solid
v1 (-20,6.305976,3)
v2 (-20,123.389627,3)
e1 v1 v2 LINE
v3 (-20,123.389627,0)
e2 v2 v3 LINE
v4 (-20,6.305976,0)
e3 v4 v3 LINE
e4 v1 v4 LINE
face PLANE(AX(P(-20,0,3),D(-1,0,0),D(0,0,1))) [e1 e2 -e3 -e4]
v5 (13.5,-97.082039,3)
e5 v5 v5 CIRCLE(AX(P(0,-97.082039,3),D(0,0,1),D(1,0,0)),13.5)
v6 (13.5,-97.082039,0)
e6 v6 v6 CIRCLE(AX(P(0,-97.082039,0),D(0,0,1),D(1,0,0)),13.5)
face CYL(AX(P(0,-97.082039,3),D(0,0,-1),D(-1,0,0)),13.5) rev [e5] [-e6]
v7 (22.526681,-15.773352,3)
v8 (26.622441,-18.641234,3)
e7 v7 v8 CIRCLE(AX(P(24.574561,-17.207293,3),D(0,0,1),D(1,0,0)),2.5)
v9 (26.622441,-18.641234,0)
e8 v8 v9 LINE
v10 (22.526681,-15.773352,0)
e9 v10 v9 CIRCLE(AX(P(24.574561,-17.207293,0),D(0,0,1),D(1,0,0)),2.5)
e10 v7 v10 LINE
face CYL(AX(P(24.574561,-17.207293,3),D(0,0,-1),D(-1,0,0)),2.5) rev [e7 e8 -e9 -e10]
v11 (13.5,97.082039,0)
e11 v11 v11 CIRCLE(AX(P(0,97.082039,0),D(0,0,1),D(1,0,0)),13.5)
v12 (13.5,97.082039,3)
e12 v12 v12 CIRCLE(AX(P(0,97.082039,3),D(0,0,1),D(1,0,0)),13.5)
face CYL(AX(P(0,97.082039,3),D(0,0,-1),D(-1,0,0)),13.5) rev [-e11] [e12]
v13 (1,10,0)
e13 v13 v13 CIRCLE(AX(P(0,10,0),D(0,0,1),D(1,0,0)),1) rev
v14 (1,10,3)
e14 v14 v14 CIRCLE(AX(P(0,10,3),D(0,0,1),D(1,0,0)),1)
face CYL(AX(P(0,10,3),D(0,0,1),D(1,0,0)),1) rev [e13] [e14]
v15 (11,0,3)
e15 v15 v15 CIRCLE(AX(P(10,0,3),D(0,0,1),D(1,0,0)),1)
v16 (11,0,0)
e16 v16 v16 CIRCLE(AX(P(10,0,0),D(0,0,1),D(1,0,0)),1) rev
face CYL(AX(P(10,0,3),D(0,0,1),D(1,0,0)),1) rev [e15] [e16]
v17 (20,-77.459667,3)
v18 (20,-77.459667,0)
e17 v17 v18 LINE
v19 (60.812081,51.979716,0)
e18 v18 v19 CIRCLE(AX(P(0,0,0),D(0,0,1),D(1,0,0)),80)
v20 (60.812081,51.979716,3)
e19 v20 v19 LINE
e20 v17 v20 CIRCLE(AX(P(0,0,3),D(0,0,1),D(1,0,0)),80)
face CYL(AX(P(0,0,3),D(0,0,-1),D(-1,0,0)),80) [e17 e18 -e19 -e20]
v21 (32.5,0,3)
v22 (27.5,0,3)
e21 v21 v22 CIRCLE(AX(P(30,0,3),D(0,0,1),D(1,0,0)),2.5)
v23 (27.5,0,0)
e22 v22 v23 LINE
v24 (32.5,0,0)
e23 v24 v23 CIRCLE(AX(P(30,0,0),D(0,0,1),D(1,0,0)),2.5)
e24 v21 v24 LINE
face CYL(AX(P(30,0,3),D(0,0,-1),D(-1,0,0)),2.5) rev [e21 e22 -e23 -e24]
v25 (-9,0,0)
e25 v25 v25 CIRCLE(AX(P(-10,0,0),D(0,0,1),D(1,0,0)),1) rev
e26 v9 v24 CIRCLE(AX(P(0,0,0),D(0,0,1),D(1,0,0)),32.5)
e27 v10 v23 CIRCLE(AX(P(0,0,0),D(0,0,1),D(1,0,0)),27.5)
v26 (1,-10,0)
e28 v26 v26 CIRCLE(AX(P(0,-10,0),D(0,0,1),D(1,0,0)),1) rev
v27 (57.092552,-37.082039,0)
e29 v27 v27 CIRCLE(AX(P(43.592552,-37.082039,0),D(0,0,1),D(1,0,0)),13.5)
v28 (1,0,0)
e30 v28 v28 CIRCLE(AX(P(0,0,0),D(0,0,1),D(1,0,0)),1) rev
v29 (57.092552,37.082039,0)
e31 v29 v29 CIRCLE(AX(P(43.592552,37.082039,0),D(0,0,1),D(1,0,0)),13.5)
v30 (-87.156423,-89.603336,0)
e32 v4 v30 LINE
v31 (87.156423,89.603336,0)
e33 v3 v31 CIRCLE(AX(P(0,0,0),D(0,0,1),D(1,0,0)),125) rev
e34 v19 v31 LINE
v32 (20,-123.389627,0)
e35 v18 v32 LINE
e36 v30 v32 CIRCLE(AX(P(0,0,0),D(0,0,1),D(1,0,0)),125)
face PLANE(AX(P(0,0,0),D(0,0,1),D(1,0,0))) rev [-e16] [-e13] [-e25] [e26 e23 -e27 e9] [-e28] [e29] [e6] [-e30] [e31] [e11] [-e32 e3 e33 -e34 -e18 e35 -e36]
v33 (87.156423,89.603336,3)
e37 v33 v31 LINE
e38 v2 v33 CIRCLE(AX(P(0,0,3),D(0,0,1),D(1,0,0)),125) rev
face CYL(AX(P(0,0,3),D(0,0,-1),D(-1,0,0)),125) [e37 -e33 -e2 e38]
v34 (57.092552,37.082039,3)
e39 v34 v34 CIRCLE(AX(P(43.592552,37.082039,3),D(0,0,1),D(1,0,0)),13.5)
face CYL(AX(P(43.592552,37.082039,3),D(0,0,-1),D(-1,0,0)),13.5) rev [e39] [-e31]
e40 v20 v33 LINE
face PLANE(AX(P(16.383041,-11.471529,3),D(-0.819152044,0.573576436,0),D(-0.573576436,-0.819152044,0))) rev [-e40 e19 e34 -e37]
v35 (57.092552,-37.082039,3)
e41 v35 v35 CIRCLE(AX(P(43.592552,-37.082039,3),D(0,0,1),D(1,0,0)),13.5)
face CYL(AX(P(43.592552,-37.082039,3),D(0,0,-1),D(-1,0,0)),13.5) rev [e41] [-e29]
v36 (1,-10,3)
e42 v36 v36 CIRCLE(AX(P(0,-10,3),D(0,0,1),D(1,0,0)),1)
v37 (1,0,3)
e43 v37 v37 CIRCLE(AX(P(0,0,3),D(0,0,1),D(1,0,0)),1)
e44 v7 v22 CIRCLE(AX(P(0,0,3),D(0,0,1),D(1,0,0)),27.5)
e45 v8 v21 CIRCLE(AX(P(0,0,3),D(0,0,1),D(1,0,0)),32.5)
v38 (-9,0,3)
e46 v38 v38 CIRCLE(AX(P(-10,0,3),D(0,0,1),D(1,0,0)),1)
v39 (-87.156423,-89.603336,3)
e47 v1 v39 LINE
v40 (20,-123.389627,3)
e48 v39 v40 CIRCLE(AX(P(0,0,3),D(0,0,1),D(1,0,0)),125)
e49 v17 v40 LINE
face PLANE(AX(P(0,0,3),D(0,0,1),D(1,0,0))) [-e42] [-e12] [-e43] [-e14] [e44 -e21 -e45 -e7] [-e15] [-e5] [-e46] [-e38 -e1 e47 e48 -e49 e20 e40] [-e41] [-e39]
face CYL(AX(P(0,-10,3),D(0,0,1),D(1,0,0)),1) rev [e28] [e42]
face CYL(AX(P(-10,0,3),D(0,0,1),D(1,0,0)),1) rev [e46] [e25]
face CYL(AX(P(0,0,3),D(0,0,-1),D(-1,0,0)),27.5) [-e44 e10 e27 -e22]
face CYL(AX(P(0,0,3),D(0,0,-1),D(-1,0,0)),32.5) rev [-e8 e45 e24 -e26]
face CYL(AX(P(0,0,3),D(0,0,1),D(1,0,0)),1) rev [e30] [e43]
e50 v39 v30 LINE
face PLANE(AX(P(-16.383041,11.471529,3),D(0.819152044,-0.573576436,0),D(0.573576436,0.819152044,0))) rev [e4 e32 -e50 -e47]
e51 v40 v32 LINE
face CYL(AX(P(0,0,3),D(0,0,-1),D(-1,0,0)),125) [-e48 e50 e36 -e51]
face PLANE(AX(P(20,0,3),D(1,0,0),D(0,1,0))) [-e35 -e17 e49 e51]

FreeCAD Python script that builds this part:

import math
import FreeCAD as App
import Part
import Sketcher
from FreeCAD import Vector
Q = App.Units.Quantity

doc = App.newDocument("Part")
body = doc.addObject("PartDesign::Body", "Body")

# Sketch on XY plane
sketch1 = body.newObject("Sketcher::SketchObject", "Sketch")
sketch1.AttachmentSupport = (doc.getObject("XY_Plane"), [""])
sketch1.MapMode = "FlatFace"
sketch1.addGeometry(Part.LineSegment(Vector(-20, 123.4, 0), Vector(-20, 6.3, 0)), False)
sketch1.addGeometry(Part.LineSegment(Vector(-20, 6.3, 0), Vector(-87.2, -89.6, 0)), False)
sketch1.addGeometry(Part.ArcOfCircle(Part.Circle(Vector(0, 0, 0), Vector(0, 0, 1), 125), math.radians(-134), math.radians(-81)), False)
sketch1.addGeometry(Part.LineSegment(Vector(20, -123.4, 0), Vector(20, -77.5, 0)), False)
sketch1.addGeometry(Part.ArcOfCircle(Part.Circle(Vector(0, 0, 0), Vector(0, 0, 1), 80), math.radians(-76), math.radians(41)), False)
sketch1.addGeometry(Part.LineSegment(Vector(60.8, 52, 0), Vector(87.2, 89.6, 0)), False)
sketch1.addGeometry(Part.ArcOfCircle(Part.Circle(Vector(0, 0, 0), Vector(0, 0, 1), 125), math.radians(46), math.radians(99)), False)
sketch1.addGeometry(Part.Circle(Vector(0, -97.1, 0), Vector(0, 0, 1), 13.5), False)
sketch1.addGeometry(Part.ArcOfCircle(Part.Circle(Vector(30, 0, 0), Vector(0, 0, 1), 2.5), math.radians(0), math.radians(180)), False)
sketch1.addGeometry(Part.ArcOfCircle(Part.Circle(Vector(0, 0, 0), Vector(0, 0, 1), 32.5), math.radians(-35), math.radians(0)), False)
sketch1.addGeometry(Part.ArcOfCircle(Part.Circle(Vector(24.6, -17.2, 0), Vector(0, 0, 1), 2.5), math.radians(145), math.radians(325)), False)
sketch1.addGeometry(Part.ArcOfCircle(Part.Circle(Vector(0, 0, 0), Vector(0, 0, 1), 27.5), math.radians(-35), math.radians(0)), False)
sketch1.addGeometry(Part.Circle(Vector(43.6, -37.1, 0), Vector(0, 0, 1), 13.5), False)
sketch1.addGeometry(Part.Circle(Vector(0, 97.1, 0), Vector(0, 0, 1), 13.5), False)
sketch1.addGeometry(Part.Circle(Vector(43.6, 37.1, 0), Vector(0, 0, 1), 13.5), False)
sketch1.addConstraint(Sketcher.Constraint("Coincident", 0, 2, 1, 1))
sketch1.addConstraint(Sketcher.Constraint("Coincident", 1, 2, 2, 1))
sketch1.addConstraint(Sketcher.Constraint("Coincident", 2, 2, 3, 1))
sketch1.addConstraint(Sketcher.Constraint("Coincident", 3, 2, 4, 1))
sketch1.addConstraint(Sketcher.Constraint("Coincident", 4, 2, 5, 1))
sketch1.addConstraint(Sketcher.Constraint("Coincident", 5, 2, 6, 1))
sketch1.addConstraint(Sketcher.Constraint("Coincident", 6, 2, 0, 1))
sketch1.addConstraint(Sketcher.Constraint("Tangent", 8, 1, 9, 2))
sketch1.addConstraint(Sketcher.Constraint("Tangent", 9, 1, 10, 2))
sketch1.addConstraint(Sketcher.Constraint("Tangent", 10, 1, 11, 1))
sketch1.addConstraint(Sketcher.Constraint("Tangent", 11, 2, 8, 2))
sketch1.addConstraint(Sketcher.Constraint("Vertical", 0))
sketch1.addConstraint(Sketcher.Constraint("Vertical", 3))
sketch1.addConstraint(Sketcher.Constraint("Coincident", 2, 3, -1, 1))
sketch1.addConstraint(Sketcher.Constraint("Coincident", 4, 3, -1, 1))
sketch1.addConstraint(Sketcher.Constraint("Coincident", 6, 3, -1, 1))
sketch1.addConstraint(Sketcher.Constraint("Coincident", 9, 3, -1, 1))
sketch1.addConstraint(Sketcher.Constraint("Coincident", 11, 3, -1, 1))
sketch1.addConstraint(Sketcher.Constraint("Equal", 2, 6))
sketch1.addConstraint(Sketcher.Constraint("Equal", 7, 12))
sketch1.addConstraint(Sketcher.Constraint("Equal", 12, 13))
sketch1.addConstraint(Sketcher.Constraint("Equal", 13, 14))
sketch1.addConstraint(Sketcher.Constraint("Symmetric", 7, 3, 13, 3, -1, 1))
sketch1.addConstraint(Sketcher.Constraint("Symmetric", 12, 3, 14, 3, -1))
sketch1.addConstraint(Sketcher.Constraint("PointOnObject", 7, 3, -2))
sketch1.addConstraint(Sketcher.Constraint("PointOnObject", 8, 3, -1))
sketch1.addConstraint(Sketcher.Constraint("Parallel", 1, 5))
sketch1.addConstraint(Sketcher.Constraint("Diameter", 7, Q("27 mm")))
sketch1.addConstraint(Sketcher.Constraint("Radius", 2, Q("125 mm")))
sketch1.addConstraint(Sketcher.Constraint("Radius", 4, Q("80 mm")))
sketch1.addConstraint(Sketcher.Constraint("Radius", 8, Q("2.5 mm")))
sketch1.addConstraint(Sketcher.Constraint("Radius", 9, Q("32.5 mm")))
sketch1.addConstraint(Sketcher.Constraint("Angle", 1, Q("-125 deg")))
sketch1.addConstraint(Sketcher.Constraint("DistanceX", 0, 2, -1, 1, Q("20 mm")))
sketch1.addConstraint(Sketcher.Constraint("DistanceX", -1, 1, 2, 2, Q("20 mm")))
sketch1.addConstraint(Sketcher.Constraint("DistanceY", 0, 2, 0, 1, Q("117.083651 mm")))
sketch1.addConstraint(Sketcher.Constraint("Distance", 5, Q("45.92996 mm")))
sketch1.addConstraint(Sketcher.Constraint("DistanceY", 7, 3, -1, 1, Q("97.082039 mm")))
sketch1.addConstraint(Sketcher.Constraint("DistanceX", -1, 1, 10, 3, Q("24.574561 mm")))
sketch1.addConstraint(Sketcher.Constraint("DistanceX", -1, 1, 12, 3, Q("43.592552 mm")))
sketch1.addConstraint(Sketcher.Constraint("DistanceY", 12, 3, -1, 1, Q("37.082039 mm")))
pad1 = body.newObject("PartDesign::Pad", "Pad")
pad1.Profile = sketch1
pad1.Length = 3

# Sketch on XY plane
sketch2 = body.newObject("Sketcher::SketchObject", "Sketch001")
sketch2.AttachmentSupport = (doc.getObject("XY_Plane"), [""])
sketch2.MapMode = "FlatFace"
sketch2.AttachmentOffset = App.Placement(Vector(0, 0, 3), App.Rotation())
sketch2.addGeometry(Part.Circle(Vector(0, -10, 0), Vector(0, 0, 1), 1), False)
sketch2.addGeometry(Part.Circle(Vector(10, 0, 0), Vector(0, 0, 1), 1), False)
sketch2.addGeometry(Part.Circle(Vector(0, 10, 0), Vector(0, 0, 1), 1), False)
sketch2.addGeometry(Part.Circle(Vector(0, 0, 0), Vector(0, 0, 1), 1), False)
sketch2.addGeometry(Part.Circle(Vector(-10, 0, 0), Vector(0, 0, 1), 1), False)
sketch2.addConstraint(Sketcher.Constraint("Coincident", 3, 3, -1, 1))
sketch2.addConstraint(Sketcher.Constraint("Equal", 0, 1))
sketch2.addConstraint(Sketcher.Constraint("Equal", 1, 2))
sketch2.addConstraint(Sketcher.Constraint("Equal", 2, 3))
sketch2.addConstraint(Sketcher.Constraint("Equal", 3, 4))
sketch2.addConstraint(Sketcher.Constraint("Symmetric", 0, 3, 2, 3, -1, 1))
sketch2.addConstraint(Sketcher.Constraint("Symmetric", 1, 3, 4, 3, -1, 1))
sketch2.addConstraint(Sketcher.Constraint("PointOnObject", 0, 3, -2))
sketch2.addConstraint(Sketcher.Constraint("PointOnObject", 1, 3, -1))
sketch2.addConstraint(Sketcher.Constraint("Diameter", 0, Q("2 mm")))
sketch2.addConstraint(Sketcher.Constraint("DistanceY", 0, 3, -1, 1, Q("10 mm")))
sketch2.addConstraint(Sketcher.Constraint("DistanceX", -1, 1, 1, 3, Q("10 mm")))
doc.recompute()
hole = body.newObject("PartDesign::Hole", "Hole")
hole.Profile = sketch2
hole.ThreadType = "None"
hole.Diameter = 2
hole.DepthType = "ThroughAll"

doc.recompute()
